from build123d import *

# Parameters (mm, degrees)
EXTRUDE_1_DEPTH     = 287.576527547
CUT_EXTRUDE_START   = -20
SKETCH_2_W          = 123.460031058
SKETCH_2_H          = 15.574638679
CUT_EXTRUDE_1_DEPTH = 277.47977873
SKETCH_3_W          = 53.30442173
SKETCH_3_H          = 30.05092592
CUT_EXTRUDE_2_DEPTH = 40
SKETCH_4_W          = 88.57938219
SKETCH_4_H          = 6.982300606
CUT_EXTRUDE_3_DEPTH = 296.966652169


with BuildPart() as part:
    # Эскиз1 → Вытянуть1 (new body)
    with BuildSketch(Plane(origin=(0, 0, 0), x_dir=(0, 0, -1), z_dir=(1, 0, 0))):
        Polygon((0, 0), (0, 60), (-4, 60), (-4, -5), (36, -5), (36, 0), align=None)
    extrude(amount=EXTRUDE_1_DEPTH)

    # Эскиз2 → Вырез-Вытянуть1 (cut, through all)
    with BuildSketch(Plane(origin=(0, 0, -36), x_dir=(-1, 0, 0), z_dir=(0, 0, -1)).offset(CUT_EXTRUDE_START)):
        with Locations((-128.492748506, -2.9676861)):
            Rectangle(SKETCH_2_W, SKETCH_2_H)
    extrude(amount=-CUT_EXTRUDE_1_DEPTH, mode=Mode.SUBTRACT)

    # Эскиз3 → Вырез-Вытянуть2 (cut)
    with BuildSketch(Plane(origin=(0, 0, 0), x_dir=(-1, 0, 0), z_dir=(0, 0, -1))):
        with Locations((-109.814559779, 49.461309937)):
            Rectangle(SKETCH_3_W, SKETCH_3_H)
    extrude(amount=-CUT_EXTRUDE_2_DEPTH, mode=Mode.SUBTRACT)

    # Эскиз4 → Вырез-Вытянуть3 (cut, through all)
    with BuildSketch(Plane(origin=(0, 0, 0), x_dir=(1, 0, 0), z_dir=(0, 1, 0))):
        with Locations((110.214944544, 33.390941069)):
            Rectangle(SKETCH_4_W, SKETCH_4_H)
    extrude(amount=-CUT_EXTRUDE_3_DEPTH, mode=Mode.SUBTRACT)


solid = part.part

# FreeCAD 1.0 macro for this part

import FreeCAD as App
import Part
import Sketcher

doc = App.newDocument("Part")
body = doc.addObject("PartDesign::Body", "Body")

# Sketch on YZ plane
sketch1 = body.newObject("Sketcher::SketchObject", "Sketch")
sketch1.AttachmentSupport = (doc.getObject("YZ_Plane"), [""])
sketch1.MapMode = "FlatFace"
sketch1.addGeometry(Part.LineSegment(App.Vector(0, 0, 0), App.Vector(60, 0, 0)), False)
sketch1.addGeometry(Part.LineSegment(App.Vector(60, 0, 0), App.Vector(60, 4, 0)), False)
sketch1.addGeometry(Part.LineSegment(App.Vector(60, 4, 0), App.Vector(-5, 4, 0)), False)
sketch1.addGeometry(Part.LineSegment(App.Vector(-5, 4, 0), App.Vector(-5, -36, 0)), False)
sketch1.addGeometry(Part.LineSegment(App.Vector(-5, -36, 0), App.Vector(0, -36, 0)), False)
sketch1.addGeometry(Part.LineSegment(App.Vector(0, -36, 0), App.Vector(0, 0, 0)), False)
sketch1.addConstraint(Sketcher.Constraint("Coincident", 0, 2, 1, 1))
sketch1.addConstraint(Sketcher.Constraint("Coincident", 1, 2, 2, 1))
sketch1.addConstraint(Sketcher.Constraint("Coincident", 2, 2, 3, 1))
sketch1.addConstraint(Sketcher.Constraint("Coincident", 3, 2, 4, 1))
sketch1.addConstraint(Sketcher.Constraint("Coincident", 4, 2, 5, 1))
sketch1.addConstraint(Sketcher.Constraint("Coincident", 5, 2, 0, 1))
sketch1.addConstraint(Sketcher.Constraint("Horizontal", 0))
sketch1.addConstraint(Sketcher.Constraint("Vertical", 1))
sketch1.addConstraint(Sketcher.Constraint("Horizontal", 2))
sketch1.addConstraint(Sketcher.Constraint("Vertical", 3))
sketch1.addConstraint(Sketcher.Constraint("Horizontal", 4))
sketch1.addConstraint(Sketcher.Constraint("Vertical", 5))
sketch1.addConstraint(Sketcher.Constraint("Coincident", 5, 2, -1, 1))
sketch1.addConstraint(Sketcher.Constraint("DistanceX", 0, 1, 0, 2, 60.0))
sketch1.addConstraint(Sketcher.Constraint("DistanceX", 2, 2, 2, 1, 65.0))
sketch1.addConstraint(Sketcher.Constraint("DistanceY", 1, 1, 1, 2, 4.0))
sketch1.addConstraint(Sketcher.Constraint("DistanceY", 3, 2, 3, 1, 40.0))
pad1 = body.newObject("PartDesign::Pad", "Pad")
pad1.Profile = sketch1
pad1.Length = 287.576528

# Sketch on XY plane
sketch2 = body.newObject("Sketcher::SketchObject", "Sketch001")
sketch2.AttachmentSupport = (doc.getObject("XY_Plane"), [""])
sketch2.MapMode = "FlatFace"
sketch2.AttachmentOffset = App.Placement(App.Vector(0, 0, -16), App.Rotation())
sketch2.addGeometry(Part.LineSegment(App.Vector(190.222764, 4.819633, 0), App.Vector(190.222764, -10.755005, 0)), False)
sketch2.addGeometry(Part.LineSegment(App.Vector(190.222764, -10.755005, 0), App.Vector(66.762733, -10.755005, 0)), False)
sketch2.addGeometry(Part.LineSegment(App.Vector(66.762733, -10.755005, 0), App.Vector(66.762733, 4.819633, 0)), False)
sketch2.addGeometry(Part.LineSegment(App.Vector(66.762733, 4.819633, 0), App.Vector(190.222764, 4.819633, 0)), False)
sketch2.addConstraint(Sketcher.Constraint("Coincident", 0, 2, 1, 1))
sketch2.addConstraint(Sketcher.Constraint("Coincident", 1, 2, 2, 1))
sketch2.addConstraint(Sketcher.Constraint("Coincident", 2, 2, 3, 1))
sketch2.addConstraint(Sketcher.Constraint("Coincident", 3, 2, 0, 1))
sketch2.addConstraint(Sketcher.Constraint("Vertical", 0))
sketch2.addConstraint(Sketcher.Constraint("Horizontal", 1))
sketch2.addConstraint(Sketcher.Constraint("Vertical", 2))
sketch2.addConstraint(Sketcher.Constraint("Horizontal", 3))
sketch2.addConstraint(Sketcher.Constraint("DistanceX", 1, 2, 1, 1, 123.460031))
sketch2.addConstraint(Sketcher.Constraint("DistanceY", 0, 2, 0, 1, 15.574639))
sketch2.addConstraint(Sketcher.Constraint("DistanceX", -1, 1, 0, 2, 190.222764))
sketch2.addConstraint(Sketcher.Constraint("DistanceY", 0, 2, -1, 1, 10.755005))
pocket1 = body.newObject("PartDesign::Pocket", "Pocket")
pocket1.Profile = sketch2
pocket1.Type = "ThroughAll"
pocket1.Reversed = True

# Sketch on XY plane
sketch3 = body.newObject("Sketcher::SketchObject", "Sketch002")
sketch3.AttachmentSupport = (doc.getObject("XY_Plane"), [""])
sketch3.MapMode = "FlatFace"
sketch3.addGeometry(Part.LineSegment(App.Vector(136.466771, 64.486773, 0), App.Vector(136.466771, 34.435847, 0)), False)
sketch3.addGeometry(Part.LineSegment(App.Vector(136.466771, 34.435847, 0), App.Vector(83.162349, 34.435847, 0)), False)
sketch3.addGeometry(Part.LineSegment(App.Vector(83.162349, 34.435847, 0), App.Vector(83.162349, 64.486773, 0)), False)
sketch3.addGeometry(Part.LineSegment(App.Vector(83.162349, 64.486773, 0), App.Vector(136.466771, 64.486773, 0)), False)
sketch3.addConstraint(Sketcher.Constraint("Coincident", 0, 2, 1, 1))
sketch3.addConstraint(Sketcher.Constraint("Coincident", 1, 2, 2, 1))
sketch3.addConstraint(Sketcher.Constraint("Coincident", 2, 2, 3, 1))
sketch3.addConstraint(Sketcher.Constraint("Coincident", 3, 2, 0, 1))
sketch3.addConstraint(Sketcher.Constraint("Vertical", 0))
sketch3.addConstraint(Sketcher.Constraint("Horizontal", 1))
sketch3.addConstraint(Sketcher.Constraint("Vertical", 2))
sketch3.addConstraint(Sketcher.Constraint("Horizontal", 3))
sketch3.addConstraint(Sketcher.Constraint("DistanceX", 1, 2, 1, 1, 53.304422))
sketch3.addConstraint(Sketcher.Constraint("DistanceY", 0, 2, 0, 1, 30.050926))
sketch3.addConstraint(Sketcher.Constraint("DistanceX", -1, 1, 0, 2, 136.466771))
sketch3.addConstraint(Sketcher.Constraint("DistanceY", -1, 1, 0, 2, 34.435847))
pocket2 = body.newObject("PartDesign::Pocket", "Pocket001")
pocket2.Profile = sketch3
pocket2.Length = 40
pocket2.Reversed = True

# Sketch on XZ plane
sketch4 = body.newObject("Sketcher::SketchObject", "Sketch003")
sketch4.AttachmentSupport = (doc.getObject("XZ_Plane"), [""])
sketch4.MapMode = "FlatFace"
sketch4.addGeometry(Part.LineSegment(App.Vector(65.925253, -36.882091, 0), App.Vector(65.925253, -29.899791, 0)), False)
sketch4.addGeometry(Part.LineSegment(App.Vector(65.925253, -29.899791, 0), App.Vector(154.504636, -29.899791, 0)), False)
sketch4.addGeometry(Part.LineSegment(App.Vector(154.504636, -29.899791, 0), App.Vector(154.504636, -36.882091, 0)), False)
sketch4.addGeometry(Part.LineSegment(App.Vector(154.504636, -36.882091, 0), App.Vector(65.925253, -36.882091, 0)), False)
sketch4.addConstraint(Sketcher.Constraint("Coincident", 0, 2, 1, 1))
sketch4.addConstraint(Sketcher.Constraint("Coincident", 1, 2, 2, 1))
sketch4.addConstraint(Sketcher.Constraint("Coincident", 2, 2, 3, 1))
sketch4.addConstraint(Sketcher.Constraint("Coincident", 3, 2, 0, 1))
sketch4.addConstraint(Sketcher.Constraint("Vertical", 0))
sketch4.addConstraint(Sketcher.Constraint("Horizontal", 1))
sketch4.addConstraint(Sketcher.Constraint("Vertical", 2))
sketch4.addConstraint(Sketcher.Constraint("Horizontal", 3))
sketch4.addConstraint(Sketcher.Constraint("DistanceY", 0, 1, 0, 2, 6.982301))
sketch4.addConstraint(Sketcher.Constraint("DistanceX", 1, 1, 1, 2, 88.579382))
sketch4.addConstraint(Sketcher.Constraint("DistanceY", 0, 2, -1, 1, 29.899791))
sketch4.addConstraint(Sketcher.Constraint("DistanceX", -1, 1, 0, 2, 65.925253))
pocket3 = body.newObject("PartDesign::Pocket", "Pocket002")
pocket3.Profile = sketch4
pocket3.Type = "ThroughAll"
pocket3.Reversed = True

doc.recompute()
